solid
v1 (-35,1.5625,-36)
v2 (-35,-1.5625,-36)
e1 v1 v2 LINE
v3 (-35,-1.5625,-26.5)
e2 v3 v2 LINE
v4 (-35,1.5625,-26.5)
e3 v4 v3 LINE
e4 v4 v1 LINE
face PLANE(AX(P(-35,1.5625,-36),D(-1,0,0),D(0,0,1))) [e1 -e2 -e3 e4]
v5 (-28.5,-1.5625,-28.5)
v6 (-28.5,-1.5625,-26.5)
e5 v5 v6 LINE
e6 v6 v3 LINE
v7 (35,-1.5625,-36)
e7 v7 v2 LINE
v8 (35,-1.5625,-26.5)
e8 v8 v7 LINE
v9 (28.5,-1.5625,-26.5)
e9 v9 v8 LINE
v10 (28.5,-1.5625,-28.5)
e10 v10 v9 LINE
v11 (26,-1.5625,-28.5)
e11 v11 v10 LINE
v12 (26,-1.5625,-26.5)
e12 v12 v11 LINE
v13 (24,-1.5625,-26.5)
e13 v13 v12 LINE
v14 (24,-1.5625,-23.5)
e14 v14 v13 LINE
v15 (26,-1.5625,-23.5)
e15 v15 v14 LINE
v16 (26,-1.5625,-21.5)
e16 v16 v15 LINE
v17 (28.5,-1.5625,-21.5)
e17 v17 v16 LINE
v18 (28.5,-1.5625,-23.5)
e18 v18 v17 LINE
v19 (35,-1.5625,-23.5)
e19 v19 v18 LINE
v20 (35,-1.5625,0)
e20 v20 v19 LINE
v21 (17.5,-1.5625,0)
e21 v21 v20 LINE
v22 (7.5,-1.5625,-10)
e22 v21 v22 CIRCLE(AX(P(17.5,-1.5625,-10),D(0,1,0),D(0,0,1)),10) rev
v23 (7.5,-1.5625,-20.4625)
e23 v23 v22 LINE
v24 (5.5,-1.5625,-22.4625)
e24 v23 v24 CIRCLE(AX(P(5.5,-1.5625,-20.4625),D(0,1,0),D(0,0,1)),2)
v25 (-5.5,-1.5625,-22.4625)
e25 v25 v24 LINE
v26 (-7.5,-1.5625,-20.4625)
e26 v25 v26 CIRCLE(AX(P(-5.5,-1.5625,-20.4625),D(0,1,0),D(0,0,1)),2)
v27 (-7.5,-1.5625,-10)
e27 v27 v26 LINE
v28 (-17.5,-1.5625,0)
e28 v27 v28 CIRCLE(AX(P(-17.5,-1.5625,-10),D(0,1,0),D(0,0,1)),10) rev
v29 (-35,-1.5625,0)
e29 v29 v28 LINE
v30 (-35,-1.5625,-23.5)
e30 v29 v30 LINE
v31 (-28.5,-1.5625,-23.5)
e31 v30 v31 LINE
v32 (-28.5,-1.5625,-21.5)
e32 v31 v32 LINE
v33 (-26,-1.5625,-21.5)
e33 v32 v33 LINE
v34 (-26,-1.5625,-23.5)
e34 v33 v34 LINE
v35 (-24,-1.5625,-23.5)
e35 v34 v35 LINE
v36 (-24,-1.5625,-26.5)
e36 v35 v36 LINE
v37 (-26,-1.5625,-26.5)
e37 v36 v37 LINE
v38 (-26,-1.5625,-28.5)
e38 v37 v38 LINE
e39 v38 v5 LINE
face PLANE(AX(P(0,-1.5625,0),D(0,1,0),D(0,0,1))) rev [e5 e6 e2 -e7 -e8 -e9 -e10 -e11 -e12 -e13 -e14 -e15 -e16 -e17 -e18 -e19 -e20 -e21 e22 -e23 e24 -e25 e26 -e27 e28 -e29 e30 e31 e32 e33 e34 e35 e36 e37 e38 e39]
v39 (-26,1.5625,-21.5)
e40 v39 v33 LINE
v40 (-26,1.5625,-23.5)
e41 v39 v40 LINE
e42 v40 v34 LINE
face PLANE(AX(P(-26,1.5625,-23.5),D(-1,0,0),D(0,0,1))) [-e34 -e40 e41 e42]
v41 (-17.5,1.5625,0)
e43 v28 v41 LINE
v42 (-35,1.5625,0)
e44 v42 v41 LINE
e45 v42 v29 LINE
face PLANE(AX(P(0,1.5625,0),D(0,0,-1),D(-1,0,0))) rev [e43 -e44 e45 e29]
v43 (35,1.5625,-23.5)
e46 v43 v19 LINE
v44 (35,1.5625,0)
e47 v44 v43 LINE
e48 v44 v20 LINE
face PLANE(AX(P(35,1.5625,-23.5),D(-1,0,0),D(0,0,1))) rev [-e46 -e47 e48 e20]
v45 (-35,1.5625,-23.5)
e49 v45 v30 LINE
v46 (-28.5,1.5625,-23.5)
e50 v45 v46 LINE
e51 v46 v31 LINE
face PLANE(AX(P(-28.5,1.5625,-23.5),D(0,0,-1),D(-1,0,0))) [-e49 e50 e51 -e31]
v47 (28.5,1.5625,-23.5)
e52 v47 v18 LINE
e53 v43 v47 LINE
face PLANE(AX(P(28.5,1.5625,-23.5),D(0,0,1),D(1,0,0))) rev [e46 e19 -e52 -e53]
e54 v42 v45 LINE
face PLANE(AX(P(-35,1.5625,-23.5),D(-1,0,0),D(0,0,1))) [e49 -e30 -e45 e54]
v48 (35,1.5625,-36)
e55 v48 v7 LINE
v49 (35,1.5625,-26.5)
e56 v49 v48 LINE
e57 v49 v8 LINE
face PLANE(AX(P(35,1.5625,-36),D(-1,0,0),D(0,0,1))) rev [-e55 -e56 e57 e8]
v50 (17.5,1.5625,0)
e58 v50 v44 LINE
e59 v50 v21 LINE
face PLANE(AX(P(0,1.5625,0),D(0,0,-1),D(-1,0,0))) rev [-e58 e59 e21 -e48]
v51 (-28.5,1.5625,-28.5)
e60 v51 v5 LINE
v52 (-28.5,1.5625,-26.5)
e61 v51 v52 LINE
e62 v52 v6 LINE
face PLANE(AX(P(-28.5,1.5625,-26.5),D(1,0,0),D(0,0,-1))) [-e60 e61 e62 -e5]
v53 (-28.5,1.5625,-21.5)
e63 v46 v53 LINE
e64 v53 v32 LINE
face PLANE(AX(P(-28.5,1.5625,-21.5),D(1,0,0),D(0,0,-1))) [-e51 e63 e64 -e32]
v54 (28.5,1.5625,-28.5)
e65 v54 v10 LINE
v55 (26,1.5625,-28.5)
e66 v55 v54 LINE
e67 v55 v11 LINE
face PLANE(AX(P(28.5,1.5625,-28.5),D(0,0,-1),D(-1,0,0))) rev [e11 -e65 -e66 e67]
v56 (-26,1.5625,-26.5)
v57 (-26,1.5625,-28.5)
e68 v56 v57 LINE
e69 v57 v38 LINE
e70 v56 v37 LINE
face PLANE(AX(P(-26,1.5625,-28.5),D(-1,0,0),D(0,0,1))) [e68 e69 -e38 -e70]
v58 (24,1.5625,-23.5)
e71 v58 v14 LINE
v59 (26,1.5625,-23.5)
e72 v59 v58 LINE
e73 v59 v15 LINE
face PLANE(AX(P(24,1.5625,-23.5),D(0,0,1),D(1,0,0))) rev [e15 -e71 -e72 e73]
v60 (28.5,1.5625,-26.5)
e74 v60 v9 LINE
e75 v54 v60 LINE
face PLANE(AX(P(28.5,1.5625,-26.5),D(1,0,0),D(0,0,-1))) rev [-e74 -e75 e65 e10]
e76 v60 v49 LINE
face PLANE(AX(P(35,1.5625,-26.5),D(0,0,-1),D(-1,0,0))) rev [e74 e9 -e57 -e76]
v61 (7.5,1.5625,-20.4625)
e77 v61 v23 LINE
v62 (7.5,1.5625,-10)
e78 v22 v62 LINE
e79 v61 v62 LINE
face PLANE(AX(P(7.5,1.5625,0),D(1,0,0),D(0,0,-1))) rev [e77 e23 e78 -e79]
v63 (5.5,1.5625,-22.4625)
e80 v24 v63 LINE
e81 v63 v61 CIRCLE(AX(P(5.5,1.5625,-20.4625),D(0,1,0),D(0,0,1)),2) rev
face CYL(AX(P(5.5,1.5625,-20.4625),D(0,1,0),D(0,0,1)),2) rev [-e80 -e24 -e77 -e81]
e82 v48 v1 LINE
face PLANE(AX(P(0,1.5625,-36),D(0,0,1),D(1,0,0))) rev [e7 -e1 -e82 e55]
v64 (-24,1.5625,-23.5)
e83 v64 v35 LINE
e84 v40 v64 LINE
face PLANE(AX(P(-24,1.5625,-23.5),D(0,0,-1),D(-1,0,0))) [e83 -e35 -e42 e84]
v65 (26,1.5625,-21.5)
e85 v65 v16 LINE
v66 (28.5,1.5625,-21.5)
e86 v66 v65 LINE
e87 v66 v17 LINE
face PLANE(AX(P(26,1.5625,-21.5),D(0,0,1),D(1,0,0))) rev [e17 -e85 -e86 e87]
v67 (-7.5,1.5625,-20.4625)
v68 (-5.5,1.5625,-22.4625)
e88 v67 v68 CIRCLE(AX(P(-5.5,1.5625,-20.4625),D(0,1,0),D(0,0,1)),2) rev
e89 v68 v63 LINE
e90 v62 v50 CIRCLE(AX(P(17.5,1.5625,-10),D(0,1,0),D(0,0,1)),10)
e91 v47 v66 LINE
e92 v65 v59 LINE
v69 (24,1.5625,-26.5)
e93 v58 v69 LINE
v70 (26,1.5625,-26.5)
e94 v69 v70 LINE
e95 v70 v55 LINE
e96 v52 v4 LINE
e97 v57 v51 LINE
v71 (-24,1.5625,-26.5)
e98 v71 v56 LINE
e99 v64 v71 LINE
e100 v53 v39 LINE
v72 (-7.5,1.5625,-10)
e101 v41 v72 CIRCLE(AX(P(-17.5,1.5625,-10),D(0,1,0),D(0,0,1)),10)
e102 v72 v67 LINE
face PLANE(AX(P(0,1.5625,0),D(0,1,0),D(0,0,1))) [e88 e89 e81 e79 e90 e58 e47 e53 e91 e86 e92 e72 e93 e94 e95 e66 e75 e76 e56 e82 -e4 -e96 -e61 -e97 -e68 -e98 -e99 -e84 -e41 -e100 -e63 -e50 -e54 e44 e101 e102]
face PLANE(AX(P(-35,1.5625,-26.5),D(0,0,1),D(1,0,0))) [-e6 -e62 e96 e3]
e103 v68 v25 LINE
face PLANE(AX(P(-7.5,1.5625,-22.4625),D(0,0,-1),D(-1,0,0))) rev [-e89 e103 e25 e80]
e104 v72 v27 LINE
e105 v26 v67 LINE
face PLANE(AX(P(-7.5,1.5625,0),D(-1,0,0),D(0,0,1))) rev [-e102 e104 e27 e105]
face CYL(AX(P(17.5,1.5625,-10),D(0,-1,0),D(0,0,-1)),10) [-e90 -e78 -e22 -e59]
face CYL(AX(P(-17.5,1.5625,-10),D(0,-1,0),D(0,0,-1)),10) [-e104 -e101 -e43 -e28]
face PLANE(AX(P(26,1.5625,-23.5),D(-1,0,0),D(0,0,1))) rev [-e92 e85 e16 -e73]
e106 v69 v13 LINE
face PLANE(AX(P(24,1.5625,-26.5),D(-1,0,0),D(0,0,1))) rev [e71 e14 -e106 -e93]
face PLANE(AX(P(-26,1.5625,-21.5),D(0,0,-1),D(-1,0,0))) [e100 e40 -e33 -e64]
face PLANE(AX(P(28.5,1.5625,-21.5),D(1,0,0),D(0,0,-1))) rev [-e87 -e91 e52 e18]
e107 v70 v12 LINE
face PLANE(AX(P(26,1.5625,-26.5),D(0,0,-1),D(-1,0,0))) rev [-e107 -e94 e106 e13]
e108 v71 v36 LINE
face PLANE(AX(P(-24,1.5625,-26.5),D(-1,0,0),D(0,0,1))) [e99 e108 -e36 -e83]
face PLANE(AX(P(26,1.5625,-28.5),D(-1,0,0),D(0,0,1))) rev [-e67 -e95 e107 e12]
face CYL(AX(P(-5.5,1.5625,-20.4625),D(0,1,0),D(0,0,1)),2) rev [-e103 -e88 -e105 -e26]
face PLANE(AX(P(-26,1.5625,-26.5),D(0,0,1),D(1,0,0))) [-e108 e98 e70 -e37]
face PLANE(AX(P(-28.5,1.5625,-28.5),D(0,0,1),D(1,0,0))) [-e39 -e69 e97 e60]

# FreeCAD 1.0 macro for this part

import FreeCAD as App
import Part
import Sketcher


def edges_at(feature, points):
    """Names of the edges that pass closest to the given points."""
    edges = feature.Shape.Edges
    near = lambda p: min(range(len(edges)), key=lambda i: edges[i].distToShape(Part.Vertex(*p))[0])
    return sorted({f"Edge{near(p) + 1}" for p in points})


def add_polygon(sketch, points):
    """Adds a closed chain of lines whose ends are joined by coincident constraints."""
    first, n = sketch.GeometryCount, len(points)
    for a, b in zip(points, points[1:] + points[:1]):
        sketch.addGeometry(Part.LineSegment(App.Vector(*a, 0), App.Vector(*b, 0)), False)
    for i in range(n):
        sketch.addConstraint(Sketcher.Constraint("Coincident", first + i, 2, first + (i + 1) % n, 1))

doc = App.newDocument("Part")
body = doc.addObject("PartDesign::Body", "Body")

# Sketch on XZ plane
sketch1 = body.newObject("Sketcher::SketchObject", "Sketch")
sketch1.AttachmentSupport = (doc.getObject("XZ_Plane"), [""])
sketch1.MapMode = "FlatFace"
add_polygon(sketch1, [(35, -36), (0, -36), (0, 0), (35, 0), (35, -23.5), (28.5, -23.5), (28.5, -21.5), (26, -21.5), (26, -23.5), (24, -23.5), (24, -26.5), (26, -26.5), (26, -28.5), (28.5, -28.5), (28.5, -26.5), (35, -26.5)])  # lines 0-15
sketch1.addConstraint(Sketcher.Constraint("Horizontal", 0))
sketch1.addConstraint(Sketcher.Constraint("Vertical", 1))
sketch1.addConstraint(Sketcher.Constraint("Horizontal", 2))
sketch1.addConstraint(Sketcher.Constraint("Vertical", 3))
sketch1.addConstraint(Sketcher.Constraint("Horizontal", 4))
sketch1.addConstraint(Sketcher.Constraint("Vertical", 5))
sketch1.addConstraint(Sketcher.Constraint("Horizontal", 6))
sketch1.addConstraint(Sketcher.Constraint("Vertical", 7))
sketch1.addConstraint(Sketcher.Constraint("Horizontal", 8))
sketch1.addConstraint(Sketcher.Constraint("Vertical", 9))
sketch1.addConstraint(Sketcher.Constraint("Horizontal", 10))
sketch1.addConstraint(Sketcher.Constraint("Vertical", 11))
sketch1.addConstraint(Sketcher.Constraint("Horizontal", 12))
sketch1.addConstraint(Sketcher.Constraint("Vertical", 13))
sketch1.addConstraint(Sketcher.Constraint("Horizontal", 14))
sketch1.addConstraint(Sketcher.Constraint("Vertical", 15))
sketch1.addConstraint(Sketcher.Constraint("Coincident", 1, 2, -1, 1))
sketch1.addConstraint(Sketcher.Constraint("Horizontal", 4, 2, 7, 2))
sketch1.addConstraint(Sketcher.Constraint("Horizontal", 10, 2, 13, 2))
sketch1.addConstraint(Sketcher.Constraint("Vertical", 7, 2, 10, 2))
sketch1.addConstraint(Sketcher.Constraint("Vertical", 5, 2, 12, 2))
sketch1.addConstraint(Sketcher.Constraint("Vertical", 3, 2, 14, 2))
sketch1.addConstraint(Sketcher.Constraint("Equal", 10, 5))
sketch1.addConstraint(Sketcher.Constraint("Equal", 7, 11))
sketch1.addConstraint(Sketcher.Constraint("DistanceX", 0, 2, 0, 1, 35.0))
sketch1.addConstraint(Sketcher.Constraint("DistanceX", 8, 2, 8, 1, 2.0))
sketch1.addConstraint(Sketcher.Constraint("DistanceY", 1, 1, 1, 2, 36.0))
sketch1.addConstraint(Sketcher.Constraint("DistanceY", 9, 2, 9, 1, 3.0))
sketch1.addConstraint(Sketcher.Constraint("DistanceX", 4, 2, 4, 1, 6.5))
sketch1.addConstraint(Sketcher.Constraint("DistanceX", 6, 2, 6, 1, 2.5))
sketch1.addConstraint(Sketcher.Constraint("DistanceY", 3, 2, 3, 1, 23.5))
pad1 = body.newObject("PartDesign::Pad", "Pad")
pad1.Profile = sketch1
pad1.Length = 3.125
pad1.Midplane = True
doc.recompute()

mirrored = body.newObject("PartDesign::Mirrored", "Mirrored")
mirrored.Originals = [pad1]
mirrored.MirrorPlane = (doc.getObject("YZ_Plane"), [""])
body.Tip = mirrored

# Sketch on XZ plane
sketch2 = body.newObject("Sketcher::SketchObject", "Sketch001")
sketch2.AttachmentSupport = (doc.getObject("XZ_Plane"), [""])
sketch2.MapMode = "FlatFace"
sketch2.AttachmentOffset = App.Placement(App.Vector(0, 0, 1.5625), App.Rotation())
add_polygon(sketch2, [(-8, 0), (-8, -22), (8, -22), (8, 0)])  # lines 0-3
sketch2.addConstraint(Sketcher.Constraint("Vertical", 0))
sketch2.addConstraint(Sketcher.Constraint("Horizontal", 1))
sketch2.addConstraint(Sketcher.Constraint("Vertical", 2))
sketch2.addConstraint(Sketcher.Constraint("Horizontal", 3))
sketch2.addConstraint(Sketcher.Constraint("Symmetric", 2, 2, 3, 2, -1, 1))
sketch2.addConstraint(Sketcher.Constraint("DistanceX", 1, 1, 1, 2, 15.0))
sketch2.addConstraint(Sketcher.Constraint("DistanceY", 0, 2, 0, 1, 22.4625))
pocket1 = body.newObject("PartDesign::Pocket", "Pocket")
pocket1.Profile = sketch2
pocket1.Type = "ThroughAll"
doc.recompute()

fillet = body.newObject("PartDesign::Fillet", "Fillet")
fillet.Base = (pocket1, edges_at(pocket1, [(-7.5, 0, 0), (7.5, 0, 0)]))
fillet.Radius = 10
doc.recompute()

fillet2 = body.newObject("PartDesign::Fillet", "Fillet001")
fillet2.Base = (fillet, edges_at(fillet, [(-7.5, 0, -22.462), (7.5, 0, -22.462)]))
fillet2.Radius = 2

doc.recompute()
